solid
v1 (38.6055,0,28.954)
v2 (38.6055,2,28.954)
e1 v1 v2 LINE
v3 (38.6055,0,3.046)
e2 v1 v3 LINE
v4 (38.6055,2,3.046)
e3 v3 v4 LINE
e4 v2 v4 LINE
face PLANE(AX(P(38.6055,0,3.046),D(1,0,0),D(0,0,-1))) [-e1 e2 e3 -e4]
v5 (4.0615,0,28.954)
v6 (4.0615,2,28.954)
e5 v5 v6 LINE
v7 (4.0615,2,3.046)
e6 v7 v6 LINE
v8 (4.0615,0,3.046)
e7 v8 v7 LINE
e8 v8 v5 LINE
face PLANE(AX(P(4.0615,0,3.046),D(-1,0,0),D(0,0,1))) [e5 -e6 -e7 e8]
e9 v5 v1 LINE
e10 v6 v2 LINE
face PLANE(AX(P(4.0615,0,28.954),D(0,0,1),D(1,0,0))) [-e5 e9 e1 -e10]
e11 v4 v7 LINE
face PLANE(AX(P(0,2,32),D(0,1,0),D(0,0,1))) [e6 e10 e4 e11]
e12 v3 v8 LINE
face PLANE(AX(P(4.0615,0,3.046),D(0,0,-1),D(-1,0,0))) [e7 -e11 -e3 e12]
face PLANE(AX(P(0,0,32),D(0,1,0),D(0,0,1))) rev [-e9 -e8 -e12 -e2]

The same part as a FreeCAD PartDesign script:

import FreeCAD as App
import Part
import Sketcher
Q = App.Units.Quantity

doc = App.newDocument("Part")
body = doc.addObject("PartDesign::Body", "Body")

# Sketch on XZ plane
sketch1 = body.newObject("Sketcher::SketchObject", "Sketch")
sketch1.AttachmentSupport = (doc.getObject("XZ_Plane"), [""])
sketch1.MapMode = "FlatFace"
sketch1.addGeometry([
    Part.LineSegment(App.Vector(0, 0, 0), App.Vector(0, 32, 0)),
    Part.LineSegment(App.Vector(0, 32, 0), App.Vector(43, 32, 0)),
    Part.LineSegment(App.Vector(43, 32, 0), App.Vector(43, 0, 0)),
    Part.LineSegment(App.Vector(43, 0, 0), App.Vector(0, 0, 0)),
], False)
sketch1.addConstraint([
    Sketcher.Constraint("Coincident", 0, 2, 1, 1),
    Sketcher.Constraint("Coincident", 1, 2, 2, 1),
    Sketcher.Constraint("Coincident", 2, 2, 3, 1),
    Sketcher.Constraint("Coincident", 3, 2, 0, 1),
    Sketcher.Constraint("Vertical", 0),
    Sketcher.Constraint("Horizontal", 1),
    Sketcher.Constraint("Vertical", 2),
    Sketcher.Constraint("Horizontal", 3),
    Sketcher.Constraint("Coincident", 3, 2, -1, 1),
    Sketcher.Constraint("DistanceY", 0, 1, 0, 2, Q("32 mm")),
    Sketcher.Constraint("DistanceX", 1, 1, 1, 2, Q("42.667 mm")),
])
pad1 = body.newObject("PartDesign::Pad", "Pad")
pad1.Profile = sketch1
pad1.Length = 2
pad1.Reversed = True

# Sketch on XZ plane
sketch2 = body.newObject("Sketcher::SketchObject", "Sketch001")
sketch2.AttachmentSupport = (doc.getObject("XZ_Plane"), [""])
sketch2.MapMode = "FlatFace"
sketch2.AttachmentOffset = App.Placement(App.Vector(0, 0, -2), App.Rotation())
sketch2.addGeometry([
    Part.LineSegment(App.Vector(49, 38, 0), App.Vector(49, -6, 0)),  # 0
    Part.LineSegment(App.Vector(49, -6, 0), App.Vector(-6, -6, 0)),  # 1
    Part.LineSegment(App.Vector(-6, -6, 0), App.Vector(-6, 38, 0)),  # 2
    Part.LineSegment(App.Vector(-6, 38, 0), App.Vector(49, 38, 0)),  # 3
    Part.LineSegment(App.Vector(4, 3, 0), App.Vector(39, 3, 0)),  # 4
    Part.LineSegment(App.Vector(39, 3, 0), App.Vector(39, 29, 0)),  # 5
    Part.LineSegment(App.Vector(39, 29, 0), App.Vector(4, 29, 0)),  # 6
    Part.LineSegment(App.Vector(4, 29, 0), App.Vector(4, 3, 0)),  # 7
], False)
sketch2.addConstraint([
    Sketcher.Constraint("Coincident", 0, 2, 1, 1),
    Sketcher.Constraint("Coincident", 1, 2, 2, 1),
    Sketcher.Constraint("Coincident", 2, 2, 3, 1),
    Sketcher.Constraint("Coincident", 3, 2, 0, 1),
    Sketcher.Constraint("Coincident", 4, 2, 5, 1),
    Sketcher.Constraint("Coincident", 5, 2, 6, 1),
    Sketcher.Constraint("Coincident", 6, 2, 7, 1),
    Sketcher.Constraint("Coincident", 7, 2, 4, 1),
    Sketcher.Constraint("Vertical", 0),
    Sketcher.Constraint("Horizontal", 1),
    Sketcher.Constraint("Vertical", 2),
    Sketcher.Constraint("Horizontal", 3),
    Sketcher.Constraint("Horizontal", 4),
    Sketcher.Constraint("Vertical", 5),
    Sketcher.Constraint("Horizontal", 6),
    Sketcher.Constraint("Vertical", 7),
    Sketcher.Constraint("DistanceX", 1, 2, 1, 1, Q("55.341 mm")),
    Sketcher.Constraint("DistanceX", 4, 1, 4, 2, Q("34.544 mm")),
    Sketcher.Constraint("DistanceY", 0, 2, 0, 1, Q("44.674 mm")),
    Sketcher.Constraint("DistanceY", 5, 1, 5, 2, Q("25.908 mm")),
    Sketcher.Constraint("DistanceX", -1, 1, 0, 2, Q("49.004 mm")),
    Sketcher.Constraint("DistanceY", 0, 2, -1, 1, Q("6.337 mm")),
    Sketcher.Constraint("DistanceY", -1, 1, 4, 2, Q("3.046 mm")),
    Sketcher.Constraint("DistanceX", -1, 1, 4, 2, Q("38.6055 mm")),
])
pocket1 = body.newObject("PartDesign::Pocket", "Pocket")
pocket1.Profile = sketch2
pocket1.Type = "ThroughAll"
pocket1.Reversed = True

doc.recompute()
